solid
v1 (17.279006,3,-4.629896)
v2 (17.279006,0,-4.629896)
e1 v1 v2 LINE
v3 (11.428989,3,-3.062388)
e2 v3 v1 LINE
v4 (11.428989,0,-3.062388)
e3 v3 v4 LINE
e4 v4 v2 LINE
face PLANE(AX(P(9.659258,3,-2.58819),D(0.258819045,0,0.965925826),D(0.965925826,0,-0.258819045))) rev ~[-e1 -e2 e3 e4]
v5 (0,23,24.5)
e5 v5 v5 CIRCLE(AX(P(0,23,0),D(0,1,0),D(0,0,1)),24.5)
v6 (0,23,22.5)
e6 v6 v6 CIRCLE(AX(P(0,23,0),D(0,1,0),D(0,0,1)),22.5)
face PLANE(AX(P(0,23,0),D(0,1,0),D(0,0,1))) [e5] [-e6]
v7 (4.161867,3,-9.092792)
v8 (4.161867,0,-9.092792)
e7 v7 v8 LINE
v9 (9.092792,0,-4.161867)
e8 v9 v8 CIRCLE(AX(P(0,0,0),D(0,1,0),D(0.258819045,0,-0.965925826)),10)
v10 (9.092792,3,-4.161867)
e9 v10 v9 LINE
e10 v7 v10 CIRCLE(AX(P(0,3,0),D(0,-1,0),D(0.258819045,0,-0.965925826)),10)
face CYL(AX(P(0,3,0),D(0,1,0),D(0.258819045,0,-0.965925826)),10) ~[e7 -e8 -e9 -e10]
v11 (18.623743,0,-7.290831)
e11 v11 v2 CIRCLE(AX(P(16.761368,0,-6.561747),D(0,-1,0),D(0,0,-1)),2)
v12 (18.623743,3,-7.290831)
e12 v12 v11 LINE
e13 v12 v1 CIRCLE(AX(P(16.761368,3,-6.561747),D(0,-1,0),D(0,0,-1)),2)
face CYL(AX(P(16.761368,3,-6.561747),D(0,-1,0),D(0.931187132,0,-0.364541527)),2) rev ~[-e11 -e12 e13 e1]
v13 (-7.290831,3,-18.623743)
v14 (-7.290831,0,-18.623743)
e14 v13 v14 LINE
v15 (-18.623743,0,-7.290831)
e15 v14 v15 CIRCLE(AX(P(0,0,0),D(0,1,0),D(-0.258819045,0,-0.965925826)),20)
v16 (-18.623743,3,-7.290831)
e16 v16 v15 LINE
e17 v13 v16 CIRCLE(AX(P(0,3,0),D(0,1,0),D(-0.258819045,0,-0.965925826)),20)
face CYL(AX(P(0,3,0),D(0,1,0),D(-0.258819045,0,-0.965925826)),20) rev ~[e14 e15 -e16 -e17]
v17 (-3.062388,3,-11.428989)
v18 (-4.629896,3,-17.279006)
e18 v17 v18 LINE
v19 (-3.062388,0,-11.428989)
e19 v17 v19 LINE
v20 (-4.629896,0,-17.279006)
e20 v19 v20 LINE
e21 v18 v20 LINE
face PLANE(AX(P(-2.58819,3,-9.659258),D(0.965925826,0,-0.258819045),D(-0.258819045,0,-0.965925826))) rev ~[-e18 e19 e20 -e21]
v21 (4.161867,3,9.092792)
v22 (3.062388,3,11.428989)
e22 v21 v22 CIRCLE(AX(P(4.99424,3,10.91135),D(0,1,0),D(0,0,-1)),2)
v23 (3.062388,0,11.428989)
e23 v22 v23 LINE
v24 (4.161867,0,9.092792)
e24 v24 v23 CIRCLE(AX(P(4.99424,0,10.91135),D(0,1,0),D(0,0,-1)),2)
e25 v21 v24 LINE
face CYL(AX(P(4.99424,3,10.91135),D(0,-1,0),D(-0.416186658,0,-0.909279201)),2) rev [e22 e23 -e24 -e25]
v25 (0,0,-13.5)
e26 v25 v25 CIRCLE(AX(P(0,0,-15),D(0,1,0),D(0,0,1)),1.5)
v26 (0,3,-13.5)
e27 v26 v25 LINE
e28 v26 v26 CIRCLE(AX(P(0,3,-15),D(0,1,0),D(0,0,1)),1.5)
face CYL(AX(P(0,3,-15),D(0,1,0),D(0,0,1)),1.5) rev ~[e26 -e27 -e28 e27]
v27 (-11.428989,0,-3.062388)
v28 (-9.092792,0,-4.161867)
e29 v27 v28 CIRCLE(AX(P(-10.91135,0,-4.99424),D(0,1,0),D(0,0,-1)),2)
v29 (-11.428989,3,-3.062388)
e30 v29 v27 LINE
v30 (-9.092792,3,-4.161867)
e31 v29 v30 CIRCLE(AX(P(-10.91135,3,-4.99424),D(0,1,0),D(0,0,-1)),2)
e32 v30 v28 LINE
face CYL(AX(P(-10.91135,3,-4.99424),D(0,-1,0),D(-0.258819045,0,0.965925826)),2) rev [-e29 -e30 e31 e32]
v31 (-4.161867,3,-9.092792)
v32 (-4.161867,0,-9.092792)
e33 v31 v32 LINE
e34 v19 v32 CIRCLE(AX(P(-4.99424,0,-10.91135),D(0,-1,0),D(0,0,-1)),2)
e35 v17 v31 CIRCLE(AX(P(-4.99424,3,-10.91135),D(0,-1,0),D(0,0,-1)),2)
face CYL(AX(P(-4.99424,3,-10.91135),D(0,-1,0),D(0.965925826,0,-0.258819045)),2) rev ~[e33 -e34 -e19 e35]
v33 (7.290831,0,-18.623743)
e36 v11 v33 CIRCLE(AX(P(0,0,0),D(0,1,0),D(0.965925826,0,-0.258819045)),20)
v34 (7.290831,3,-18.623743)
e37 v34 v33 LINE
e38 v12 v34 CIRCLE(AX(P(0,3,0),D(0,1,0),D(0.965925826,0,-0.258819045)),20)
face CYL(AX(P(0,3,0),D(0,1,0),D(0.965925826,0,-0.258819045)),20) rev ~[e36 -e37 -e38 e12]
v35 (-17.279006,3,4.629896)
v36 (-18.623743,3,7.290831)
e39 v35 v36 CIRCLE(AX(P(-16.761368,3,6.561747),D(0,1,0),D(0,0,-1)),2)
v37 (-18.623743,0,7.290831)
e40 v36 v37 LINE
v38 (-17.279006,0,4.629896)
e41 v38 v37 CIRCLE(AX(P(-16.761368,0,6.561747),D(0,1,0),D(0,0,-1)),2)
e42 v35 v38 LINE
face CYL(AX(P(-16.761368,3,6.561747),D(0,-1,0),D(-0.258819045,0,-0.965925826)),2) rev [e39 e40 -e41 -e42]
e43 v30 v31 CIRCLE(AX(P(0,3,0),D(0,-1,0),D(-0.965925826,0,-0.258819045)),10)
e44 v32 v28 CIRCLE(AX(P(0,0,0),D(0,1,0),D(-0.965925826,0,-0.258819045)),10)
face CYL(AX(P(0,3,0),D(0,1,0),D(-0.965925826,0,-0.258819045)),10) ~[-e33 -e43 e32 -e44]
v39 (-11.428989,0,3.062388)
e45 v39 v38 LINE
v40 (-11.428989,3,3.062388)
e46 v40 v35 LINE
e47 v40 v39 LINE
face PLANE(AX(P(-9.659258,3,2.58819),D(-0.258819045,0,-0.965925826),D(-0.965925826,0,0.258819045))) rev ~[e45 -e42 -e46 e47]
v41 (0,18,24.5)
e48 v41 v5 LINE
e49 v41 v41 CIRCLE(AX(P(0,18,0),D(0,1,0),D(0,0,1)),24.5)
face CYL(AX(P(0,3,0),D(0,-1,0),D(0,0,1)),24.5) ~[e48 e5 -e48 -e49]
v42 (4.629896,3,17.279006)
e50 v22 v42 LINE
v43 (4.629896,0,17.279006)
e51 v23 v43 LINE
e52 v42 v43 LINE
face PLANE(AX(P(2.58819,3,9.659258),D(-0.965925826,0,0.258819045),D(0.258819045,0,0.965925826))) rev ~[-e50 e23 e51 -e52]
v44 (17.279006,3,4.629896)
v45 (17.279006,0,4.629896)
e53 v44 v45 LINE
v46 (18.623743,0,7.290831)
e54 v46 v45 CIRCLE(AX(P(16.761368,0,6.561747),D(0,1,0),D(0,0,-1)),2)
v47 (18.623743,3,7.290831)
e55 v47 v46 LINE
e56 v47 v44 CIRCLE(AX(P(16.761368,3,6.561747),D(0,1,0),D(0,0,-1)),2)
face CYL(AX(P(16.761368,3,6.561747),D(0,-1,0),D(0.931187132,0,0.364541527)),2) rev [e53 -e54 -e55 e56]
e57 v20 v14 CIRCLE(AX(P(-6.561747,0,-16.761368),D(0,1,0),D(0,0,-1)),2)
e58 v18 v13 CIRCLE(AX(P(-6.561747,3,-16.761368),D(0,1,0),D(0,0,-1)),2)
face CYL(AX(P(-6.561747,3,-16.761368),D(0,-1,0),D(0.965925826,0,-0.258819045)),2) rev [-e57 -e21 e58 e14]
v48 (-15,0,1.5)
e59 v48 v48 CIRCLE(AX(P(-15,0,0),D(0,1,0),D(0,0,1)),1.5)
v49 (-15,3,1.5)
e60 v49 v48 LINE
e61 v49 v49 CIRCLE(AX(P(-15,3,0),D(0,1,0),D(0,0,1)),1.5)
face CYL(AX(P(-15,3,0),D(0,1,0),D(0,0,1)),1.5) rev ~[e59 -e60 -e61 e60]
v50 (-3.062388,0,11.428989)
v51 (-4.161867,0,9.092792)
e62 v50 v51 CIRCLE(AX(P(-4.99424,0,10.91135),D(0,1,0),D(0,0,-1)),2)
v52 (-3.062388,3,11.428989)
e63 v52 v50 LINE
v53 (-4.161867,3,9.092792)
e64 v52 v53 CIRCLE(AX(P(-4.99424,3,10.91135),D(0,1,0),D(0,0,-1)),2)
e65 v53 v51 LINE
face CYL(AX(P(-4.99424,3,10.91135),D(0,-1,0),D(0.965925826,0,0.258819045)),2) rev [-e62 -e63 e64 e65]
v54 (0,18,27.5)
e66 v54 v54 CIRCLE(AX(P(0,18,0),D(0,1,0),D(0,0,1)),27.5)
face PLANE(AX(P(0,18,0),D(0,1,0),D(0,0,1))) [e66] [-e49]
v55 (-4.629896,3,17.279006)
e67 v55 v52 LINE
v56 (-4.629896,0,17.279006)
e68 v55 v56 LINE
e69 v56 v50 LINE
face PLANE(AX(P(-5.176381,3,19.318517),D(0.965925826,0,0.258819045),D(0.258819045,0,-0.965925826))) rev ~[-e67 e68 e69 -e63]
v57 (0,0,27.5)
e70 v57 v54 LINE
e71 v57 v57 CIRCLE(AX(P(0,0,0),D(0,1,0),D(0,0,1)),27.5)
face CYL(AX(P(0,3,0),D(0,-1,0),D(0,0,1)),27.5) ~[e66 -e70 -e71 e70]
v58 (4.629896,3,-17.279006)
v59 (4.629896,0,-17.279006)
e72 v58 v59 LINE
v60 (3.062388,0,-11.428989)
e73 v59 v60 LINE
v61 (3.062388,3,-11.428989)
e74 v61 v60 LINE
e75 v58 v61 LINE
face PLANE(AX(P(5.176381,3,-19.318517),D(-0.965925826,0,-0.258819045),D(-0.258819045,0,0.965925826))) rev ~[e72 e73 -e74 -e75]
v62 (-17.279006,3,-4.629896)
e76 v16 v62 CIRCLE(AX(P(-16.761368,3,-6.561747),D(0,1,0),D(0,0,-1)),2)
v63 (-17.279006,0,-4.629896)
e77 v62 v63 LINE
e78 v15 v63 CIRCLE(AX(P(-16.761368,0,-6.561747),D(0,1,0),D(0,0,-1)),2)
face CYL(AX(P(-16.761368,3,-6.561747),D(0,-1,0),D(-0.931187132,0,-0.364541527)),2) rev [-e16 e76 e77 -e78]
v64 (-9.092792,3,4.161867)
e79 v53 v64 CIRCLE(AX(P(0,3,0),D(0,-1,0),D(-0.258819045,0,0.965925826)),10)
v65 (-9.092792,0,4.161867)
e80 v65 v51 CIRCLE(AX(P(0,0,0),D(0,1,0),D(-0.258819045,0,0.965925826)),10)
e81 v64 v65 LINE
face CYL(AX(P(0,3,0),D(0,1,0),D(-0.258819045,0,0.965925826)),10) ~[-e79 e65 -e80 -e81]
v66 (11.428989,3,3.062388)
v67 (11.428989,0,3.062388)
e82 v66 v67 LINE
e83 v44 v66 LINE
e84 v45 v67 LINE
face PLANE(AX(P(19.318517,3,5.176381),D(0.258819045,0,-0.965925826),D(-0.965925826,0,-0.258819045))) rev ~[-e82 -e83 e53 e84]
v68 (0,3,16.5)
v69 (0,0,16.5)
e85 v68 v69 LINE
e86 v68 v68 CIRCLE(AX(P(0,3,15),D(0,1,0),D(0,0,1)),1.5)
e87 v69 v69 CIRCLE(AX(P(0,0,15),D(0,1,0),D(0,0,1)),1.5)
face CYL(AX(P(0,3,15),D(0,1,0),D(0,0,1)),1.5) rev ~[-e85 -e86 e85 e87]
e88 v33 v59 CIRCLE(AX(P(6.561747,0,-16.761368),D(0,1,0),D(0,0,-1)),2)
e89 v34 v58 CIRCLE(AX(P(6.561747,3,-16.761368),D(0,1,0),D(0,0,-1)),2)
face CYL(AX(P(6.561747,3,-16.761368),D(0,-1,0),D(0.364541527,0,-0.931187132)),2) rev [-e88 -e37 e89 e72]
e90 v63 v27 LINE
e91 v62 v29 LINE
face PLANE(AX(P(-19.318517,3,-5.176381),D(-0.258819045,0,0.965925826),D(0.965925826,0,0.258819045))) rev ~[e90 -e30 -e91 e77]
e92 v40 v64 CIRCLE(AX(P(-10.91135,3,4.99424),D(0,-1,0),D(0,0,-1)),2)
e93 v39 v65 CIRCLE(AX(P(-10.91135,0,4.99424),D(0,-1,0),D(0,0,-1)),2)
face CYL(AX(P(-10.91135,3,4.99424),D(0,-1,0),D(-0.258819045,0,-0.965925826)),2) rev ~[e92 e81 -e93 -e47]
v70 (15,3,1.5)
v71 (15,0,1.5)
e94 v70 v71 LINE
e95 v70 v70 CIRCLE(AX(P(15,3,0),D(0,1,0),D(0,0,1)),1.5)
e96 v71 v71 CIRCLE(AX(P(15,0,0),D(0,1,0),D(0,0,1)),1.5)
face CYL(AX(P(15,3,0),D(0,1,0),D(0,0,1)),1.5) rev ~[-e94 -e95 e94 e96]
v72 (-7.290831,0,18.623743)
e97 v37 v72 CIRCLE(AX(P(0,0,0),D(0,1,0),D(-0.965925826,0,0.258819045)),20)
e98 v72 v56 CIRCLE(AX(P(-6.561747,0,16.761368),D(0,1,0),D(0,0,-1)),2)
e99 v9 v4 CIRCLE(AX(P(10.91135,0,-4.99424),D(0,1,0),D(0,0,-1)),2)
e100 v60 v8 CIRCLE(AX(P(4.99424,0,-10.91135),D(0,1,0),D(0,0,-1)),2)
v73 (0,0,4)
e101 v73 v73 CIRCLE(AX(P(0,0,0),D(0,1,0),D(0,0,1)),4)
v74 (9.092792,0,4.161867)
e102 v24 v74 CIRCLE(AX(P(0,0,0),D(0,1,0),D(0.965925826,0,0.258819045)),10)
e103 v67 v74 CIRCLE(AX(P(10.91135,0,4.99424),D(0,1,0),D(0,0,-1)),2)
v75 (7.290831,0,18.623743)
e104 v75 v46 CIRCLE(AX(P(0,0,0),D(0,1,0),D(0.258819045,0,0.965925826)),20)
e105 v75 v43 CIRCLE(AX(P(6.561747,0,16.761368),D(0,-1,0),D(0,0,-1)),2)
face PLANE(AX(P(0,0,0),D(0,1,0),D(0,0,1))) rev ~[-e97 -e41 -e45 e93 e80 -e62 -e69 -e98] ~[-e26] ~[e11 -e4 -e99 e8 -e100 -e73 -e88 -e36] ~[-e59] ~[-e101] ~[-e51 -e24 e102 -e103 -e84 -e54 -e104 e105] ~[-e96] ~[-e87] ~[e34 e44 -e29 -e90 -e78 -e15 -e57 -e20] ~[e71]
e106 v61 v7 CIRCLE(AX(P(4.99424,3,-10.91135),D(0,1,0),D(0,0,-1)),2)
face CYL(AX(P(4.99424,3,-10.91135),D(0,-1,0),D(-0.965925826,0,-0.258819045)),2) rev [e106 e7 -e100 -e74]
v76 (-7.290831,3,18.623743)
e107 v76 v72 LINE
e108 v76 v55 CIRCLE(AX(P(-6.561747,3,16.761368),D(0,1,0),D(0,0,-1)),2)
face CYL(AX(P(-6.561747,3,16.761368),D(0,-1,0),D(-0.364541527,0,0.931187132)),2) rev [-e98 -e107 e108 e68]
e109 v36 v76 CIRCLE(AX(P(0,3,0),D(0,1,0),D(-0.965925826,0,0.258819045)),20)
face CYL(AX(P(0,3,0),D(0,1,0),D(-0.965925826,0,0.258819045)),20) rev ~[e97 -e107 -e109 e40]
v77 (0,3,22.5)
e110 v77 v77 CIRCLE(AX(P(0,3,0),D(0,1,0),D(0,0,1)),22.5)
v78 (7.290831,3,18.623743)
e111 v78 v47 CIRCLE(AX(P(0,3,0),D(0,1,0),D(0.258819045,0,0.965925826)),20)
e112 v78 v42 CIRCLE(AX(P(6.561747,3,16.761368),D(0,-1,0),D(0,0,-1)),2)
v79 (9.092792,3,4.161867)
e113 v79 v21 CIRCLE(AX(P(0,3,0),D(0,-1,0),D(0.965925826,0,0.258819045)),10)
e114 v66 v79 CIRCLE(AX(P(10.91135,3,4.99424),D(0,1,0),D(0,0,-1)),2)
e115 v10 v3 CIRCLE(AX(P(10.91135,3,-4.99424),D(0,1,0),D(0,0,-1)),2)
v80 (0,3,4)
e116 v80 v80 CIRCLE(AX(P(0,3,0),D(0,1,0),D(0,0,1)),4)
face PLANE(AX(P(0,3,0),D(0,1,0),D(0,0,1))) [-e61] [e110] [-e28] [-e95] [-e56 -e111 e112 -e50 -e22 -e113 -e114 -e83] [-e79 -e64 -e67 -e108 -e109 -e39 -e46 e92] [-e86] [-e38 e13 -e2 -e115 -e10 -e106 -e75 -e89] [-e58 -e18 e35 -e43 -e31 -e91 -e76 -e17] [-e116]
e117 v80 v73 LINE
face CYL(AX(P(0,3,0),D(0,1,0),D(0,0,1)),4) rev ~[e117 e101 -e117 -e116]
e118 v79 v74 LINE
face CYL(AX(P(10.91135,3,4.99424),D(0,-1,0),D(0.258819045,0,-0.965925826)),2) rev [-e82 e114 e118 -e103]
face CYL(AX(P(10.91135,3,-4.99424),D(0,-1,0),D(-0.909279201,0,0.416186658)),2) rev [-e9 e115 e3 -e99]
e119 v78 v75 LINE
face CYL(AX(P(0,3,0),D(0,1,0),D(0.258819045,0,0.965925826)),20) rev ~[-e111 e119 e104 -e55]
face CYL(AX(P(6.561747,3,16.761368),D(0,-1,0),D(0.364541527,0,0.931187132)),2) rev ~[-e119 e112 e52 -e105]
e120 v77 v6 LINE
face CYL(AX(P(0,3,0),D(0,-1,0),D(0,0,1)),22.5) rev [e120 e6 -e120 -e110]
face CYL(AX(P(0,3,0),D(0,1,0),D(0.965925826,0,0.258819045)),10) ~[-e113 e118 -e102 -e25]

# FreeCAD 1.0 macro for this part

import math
import FreeCAD as App
import Part
import Sketcher
from FreeCAD import Vector
Q = App.Units.Quantity


def edges_at(feature, points):
    """Names of the edges that pass closest to the given points."""
    edges = feature.Shape.Edges
    near = lambda p: min(range(len(edges)), key=lambda i: edges[i].distToShape(Part.Vertex(*p))[0])
    return sorted({f"Edge{near(p) + 1}" for p in points})

doc = App.newDocument("Part")
params = doc.addObject("Spreadsheet::Sheet", "Params")
for row, (alias, value) in enumerate([
    ("sketch1_diameter", "55 mm"),
    ("pad1_length", "3 mm"),
    ("sketch2_diameter", "55 mm"),
    ("sketch2_diameter2", "49 mm"),
    ("pad2_length", "15 mm"),
    ("sketch3_diameter", "8 mm"),
    ("pocket1_length", "5 mm"),
    ("sketch4_diameter", "3 mm"),
    ("sketch4_radius", "20 mm"),
    ("sketch4_radius2", "10 mm"),
    ("pocket2_length", "10 mm"),
    ("fillet_radius", "2 mm"),
    ("sketch5_diameter", "49 mm"),
    ("sketch5_diameter2", "45 mm"),
    ("pad3_length", "20 mm"),
], start=1):
    params.set(f"A{row}", alias)
    params.set(f"B{row}", "=" + value)
    params.setAlias(f"B{row}", alias)

body = doc.addObject("PartDesign::Body", "Body")

# Sketch on XZ plane
sketch1 = body.newObject("Sketcher::SketchObject", "Sketch")
sketch1.AttachmentSupport = (doc.getObject("XZ_Plane"), [""])
sketch1.MapMode = "FlatFace"
sketch1.addGeometry(Part.Circle(Vector(0, 0, 0), Vector(0, 0, 1), 28), False)
sketch1.addConstraint([
    Sketcher.Constraint("Coincident", 0, 3, -1, 1),
    Sketcher.Constraint("Diameter", 0, Q("55 mm")),
])
sketch1.setExpression("Constraints[1]", "Params.sketch1_diameter")
pad1 = body.newObject("PartDesign::Pad", "Pad")
pad1.Profile = sketch1
pad1.setExpression("Length", "Params.pad1_length")
pad1.Reversed = True

# Sketch on XZ plane
sketch2 = body.newObject("Sketcher::SketchObject", "Sketch001")
sketch2.AttachmentSupport = (doc.getObject("XZ_Plane"), [""])
sketch2.MapMode = "FlatFace"
sketch2.AttachmentOffset = App.Placement(Vector(0, 0, -3), App.Rotation())
sketch2.addGeometry([
    Part.Circle(Vector(0, 0, 0), Vector(0, 0, 1), 28),
    Part.Circle(Vector(0, 0, 0), Vector(0, 0, 1), 24),
], False)
sketch2.addConstraint([
    Sketcher.Constraint("Coincident", 0, 3, -1, 1),
    Sketcher.Constraint("Coincident", 1, 3, -1, 1),
    Sketcher.Constraint("Diameter", 0, Q("55 mm")),
    Sketcher.Constraint("Diameter", 1, Q("49 mm")),
])
sketch2.setExpression("Constraints[2]", "Params.sketch2_diameter")
sketch2.setExpression("Constraints[3]", "Params.sketch2_diameter2")
pad2 = body.newObject("PartDesign::Pad", "Pad001")
pad2.Profile = sketch2
pad2.setExpression("Length", "Params.pad2_length")
pad2.Reversed = True

# Sketch on XZ plane
sketch3 = body.newObject("Sketcher::SketchObject", "Sketch002")
sketch3.AttachmentSupport = (doc.getObject("XZ_Plane"), [""])
sketch3.MapMode = "FlatFace"
sketch3.AttachmentOffset = App.Placement(Vector(0, 0, -3), App.Rotation())
sketch3.addGeometry(Part.Circle(Vector(0, 0, 0), Vector(0, 0, 1), 4), False)
sketch3.addConstraint([
    Sketcher.Constraint("Coincident", 0, 3, -1, 1),
    Sketcher.Constraint("Diameter", 0, Q("8 mm")),
])
sketch3.setExpression("Constraints[1]", "Params.sketch3_diameter")
pocket1 = body.newObject("PartDesign::Pocket", "Pocket")
pocket1.Profile = sketch3
pocket1.setExpression("Length", "Params.pocket1_length")
pocket1.Reversed = True

# Sketch on XZ plane
sketch4 = body.newObject("Sketcher::SketchObject", "Sketch003")
sketch4.AttachmentSupport = (doc.getObject("XZ_Plane"), [""])
sketch4.MapMode = "FlatFace"
sketch4.AttachmentOffset = App.Placement(Vector(0, 0, -3), App.Rotation())
sketch4.addGeometry([
    Part.LineSegment(Vector(-2.6, -9.7, 0), Vector(-5.2, -19.3, 0)),  # 0
    Part.ArcOfCircle(Part.Circle(Vector(0, 0, 0), Vector(0, 0, 1), 20), math.radians(-165), math.radians(-105)),  # 1
    Part.LineSegment(Vector(-19.3, -5.2, 0), Vector(-9.7, -2.6, 0)),  # 2
    Part.ArcOfCircle(Part.Circle(Vector(0, 0, 0), Vector(0, 0, 1), 10), math.radians(-165), math.radians(-105)),  # 3
    Part.ArcOfCircle(Part.Circle(Vector(0, 0, 0), Vector(0, 0, 1), 20), math.radians(-75), math.radians(-15)),  # 4
    Part.LineSegment(Vector(5.2, -19.3, 0), Vector(2.6, -9.7, 0)),  # 5
    Part.ArcOfCircle(Part.Circle(Vector(0, 0, 0), Vector(0, 0, 1), 10), math.radians(-75), math.radians(-15)),  # 6
    Part.LineSegment(Vector(9.7, -2.6, 0), Vector(19.3, -5.2, 0)),  # 7
    Part.LineSegment(Vector(-9.7, 2.6, 0), Vector(-19.3, 5.2, 0)),  # 8
    Part.ArcOfCircle(Part.Circle(Vector(0, 0, 0), Vector(0, 0, 1), 20), math.radians(105), math.radians(165)),  # 9
    Part.LineSegment(Vector(-5.2, 19.3, 0), Vector(-2.6, 9.7, 0)),  # 10
    Part.ArcOfCircle(Part.Circle(Vector(0, 0, 0), Vector(0, 0, 1), 10), math.radians(105), math.radians(165)),  # 11
    Part.ArcOfCircle(Part.Circle(Vector(0, 0, 0), Vector(0, 0, 1), 20), math.radians(15), math.radians(75)),  # 12
    Part.LineSegment(Vector(19.3, 5.2, 0), Vector(9.7, 2.6, 0)),  # 13
    Part.ArcOfCircle(Part.Circle(Vector(0, 0, 0), Vector(0, 0, 1), 10), math.radians(15), math.radians(75)),  # 14
    Part.LineSegment(Vector(2.6, 9.7, 0), Vector(5.2, 19.3, 0)),  # 15
    Part.Circle(Vector(0, -15, 0), Vector(0, 0, 1), 1.5),  # 16
    Part.Circle(Vector(15, 0, 0), Vector(0, 0, 1), 1.5),  # 17
    Part.Circle(Vector(0, 15, 0), Vector(0, 0, 1), 1.5),  # 18
    Part.Circle(Vector(-15, 0, 0), Vector(0, 0, 1), 1.5),  # 19
], False)
sketch4.addConstraint([
    Sketcher.Constraint("Coincident", 0, 2, 1, 2),
    Sketcher.Constraint("Coincident", 1, 1, 2, 1),
    Sketcher.Constraint("Coincident", 2, 2, 3, 1),
    Sketcher.Constraint("Coincident", 3, 2, 0, 1),
    Sketcher.Constraint("Coincident", 4, 1, 5, 1),
    Sketcher.Constraint("Coincident", 5, 2, 6, 1),
    Sketcher.Constraint("Coincident", 6, 2, 7, 1),
    Sketcher.Constraint("Coincident", 7, 2, 4, 2),
    Sketcher.Constraint("Coincident", 8, 2, 9, 2),
    Sketcher.Constraint("Coincident", 9, 1, 10, 1),
    Sketcher.Constraint("Coincident", 10, 2, 11, 1),
    Sketcher.Constraint("Coincident", 11, 2, 8, 1),
    Sketcher.Constraint("Coincident", 12, 1, 13, 1),
    Sketcher.Constraint("Coincident", 13, 2, 14, 1),
    Sketcher.Constraint("Coincident", 14, 2, 15, 1),
    Sketcher.Constraint("Coincident", 15, 2, 12, 2),
    Sketcher.Constraint("Coincident", 1, 3, -1, 1),
    Sketcher.Constraint("Coincident", 3, 3, -1, 1),
    Sketcher.Constraint("Coincident", 4, 3, -1, 1),
    Sketcher.Constraint("Coincident", 6, 3, -1, 1),
    Sketcher.Constraint("Coincident", 9, 3, -1, 1),
    Sketcher.Constraint("Coincident", 11, 3, -1, 1),
    Sketcher.Constraint("Coincident", 12, 3, -1, 1),
    Sketcher.Constraint("Coincident", 14, 3, -1, 1),
    Sketcher.Constraint("Equal", 1, 4),
    Sketcher.Constraint("Equal", 3, 6),
    Sketcher.Constraint("Equal", 4, 9),
    Sketcher.Constraint("Equal", 6, 11),
    Sketcher.Constraint("Equal", 9, 12),
    Sketcher.Constraint("Equal", 11, 14),
    Sketcher.Constraint("Equal", 16, 17),
    Sketcher.Constraint("Equal", 17, 18),
    Sketcher.Constraint("Equal", 18, 19),
    Sketcher.Constraint("Symmetric", 16, 3, 18, 3, -1, 1),
    Sketcher.Constraint("Symmetric", 17, 3, 19, 3, -1, 1),
    Sketcher.Constraint("PointOnObject", 16, 3, -2),
    Sketcher.Constraint("PointOnObject", 17, 3, -1),
    Sketcher.Constraint("Perpendicular", 2, 5),
    Sketcher.Constraint("Perpendicular", 0, 7),
    Sketcher.Constraint("Parallel", 7, 8),
    Sketcher.Constraint("Parallel", 5, 10),
    Sketcher.Constraint("Perpendicular", 10, 13),
    Sketcher.Constraint("Perpendicular", 8, 15),
    Sketcher.Constraint("Horizontal", 0, 2, 4, 1),
    Sketcher.Constraint("Horizontal", 3, 2, 5, 2),
    Sketcher.Constraint("Horizontal", 2, 2, 6, 2),
    Sketcher.Constraint("Horizontal", 8, 2, 12, 1),
    Sketcher.Constraint("Horizontal", 10, 2, 14, 2),
    Sketcher.Constraint("Vertical", 1, 1, 8, 2),
    Sketcher.Constraint("Vertical", 0, 2, 9, 1),
    Sketcher.Constraint("Diameter", 16, Q("3 mm")),
    Sketcher.Constraint("Radius", 1, Q("20 mm")),
    Sketcher.Constraint("Radius", 3, Q("10 mm")),
    Sketcher.Constraint("Angle", 0, Q("-105 deg")),
    Sketcher.Constraint("DistanceY", 16, 3, -1, 1, Q("15 mm")),
    Sketcher.Constraint("DistanceX", -1, 1, 17, 3, Q("15 mm")),
    Sketcher.Constraint("DistanceX", 0, 2, -1, 1, Q("5.176381 mm")),
    Sketcher.Constraint("DistanceY", 1, 1, -1, 1, Q("5.176381 mm")),
])
sketch4.setExpression("Constraints[50]", "Params.sketch4_diameter")
sketch4.setExpression("Constraints[51]", "Params.sketch4_radius")
sketch4.setExpression("Constraints[52]", "Params.sketch4_radius2")
pocket2 = body.newObject("PartDesign::Pocket", "Pocket001")
pocket2.Profile = sketch4
pocket2.setExpression("Length", "Params.pocket2_length")
pocket2.Reversed = True
doc.recompute()

fillet = body.newObject("PartDesign::Fillet", "Fillet")
fillet.Base = (pocket2, edges_at(pocket2, [
    (-9.659, 1.5, 2.588),
    (-2.588, 1.5, 9.659),
    (-5.176, 1.5, 19.319),
    (-19.319, 1.5, 5.176),
    (2.588, 1.5, 9.659),
    (9.659, 1.5, 2.588),
    (19.319, 1.5, 5.176),
    (5.176, 1.5, 19.319),
    (9.659, 1.5, -2.588),
    (2.588, 1.5, -9.659),
    (5.176, 1.5, -19.319),
    (19.319, 1.5, -5.176),
    (-2.588, 1.5, -9.659),
    (-9.659, 1.5, -2.588),
    (-19.319, 1.5, -5.176),
    (-5.176, 1.5, -19.319),
]))
fillet.setExpression("Radius", "Params.fillet_radius")

# Sketch on XZ plane
sketch5 = body.newObject("Sketcher::SketchObject", "Sketch004")
sketch5.AttachmentSupport = (doc.getObject("XZ_Plane"), [""])
sketch5.MapMode = "FlatFace"
sketch5.AttachmentOffset = App.Placement(Vector(0, 0, -3), App.Rotation())
sketch5.addGeometry([
    Part.Circle(Vector(0, 0, 0), Vector(0, 0, 1), 24),
    Part.Circle(Vector(0, 0, 0), Vector(0, 0, 1), 22),
], False)
sketch5.addConstraint([
    Sketcher.Constraint("Coincident", 0, 3, -1, 1),
    Sketcher.Constraint("Coincident", 1, 3, -1, 1),
    Sketcher.Constraint("Diameter", 0, Q("49 mm")),
    Sketcher.Constraint("Diameter", 1, Q("45 mm")),
])
sketch5.setExpression("Constraints[2]", "Params.sketch5_diameter")
sketch5.setExpression("Constraints[3]", "Params.sketch5_diameter2")
pad3 = body.newObject("PartDesign::Pad", "Pad002")
pad3.Profile = sketch5
pad3.setExpression("Length", "Params.pad3_length")
pad3.Reversed = True

doc.recompute()
